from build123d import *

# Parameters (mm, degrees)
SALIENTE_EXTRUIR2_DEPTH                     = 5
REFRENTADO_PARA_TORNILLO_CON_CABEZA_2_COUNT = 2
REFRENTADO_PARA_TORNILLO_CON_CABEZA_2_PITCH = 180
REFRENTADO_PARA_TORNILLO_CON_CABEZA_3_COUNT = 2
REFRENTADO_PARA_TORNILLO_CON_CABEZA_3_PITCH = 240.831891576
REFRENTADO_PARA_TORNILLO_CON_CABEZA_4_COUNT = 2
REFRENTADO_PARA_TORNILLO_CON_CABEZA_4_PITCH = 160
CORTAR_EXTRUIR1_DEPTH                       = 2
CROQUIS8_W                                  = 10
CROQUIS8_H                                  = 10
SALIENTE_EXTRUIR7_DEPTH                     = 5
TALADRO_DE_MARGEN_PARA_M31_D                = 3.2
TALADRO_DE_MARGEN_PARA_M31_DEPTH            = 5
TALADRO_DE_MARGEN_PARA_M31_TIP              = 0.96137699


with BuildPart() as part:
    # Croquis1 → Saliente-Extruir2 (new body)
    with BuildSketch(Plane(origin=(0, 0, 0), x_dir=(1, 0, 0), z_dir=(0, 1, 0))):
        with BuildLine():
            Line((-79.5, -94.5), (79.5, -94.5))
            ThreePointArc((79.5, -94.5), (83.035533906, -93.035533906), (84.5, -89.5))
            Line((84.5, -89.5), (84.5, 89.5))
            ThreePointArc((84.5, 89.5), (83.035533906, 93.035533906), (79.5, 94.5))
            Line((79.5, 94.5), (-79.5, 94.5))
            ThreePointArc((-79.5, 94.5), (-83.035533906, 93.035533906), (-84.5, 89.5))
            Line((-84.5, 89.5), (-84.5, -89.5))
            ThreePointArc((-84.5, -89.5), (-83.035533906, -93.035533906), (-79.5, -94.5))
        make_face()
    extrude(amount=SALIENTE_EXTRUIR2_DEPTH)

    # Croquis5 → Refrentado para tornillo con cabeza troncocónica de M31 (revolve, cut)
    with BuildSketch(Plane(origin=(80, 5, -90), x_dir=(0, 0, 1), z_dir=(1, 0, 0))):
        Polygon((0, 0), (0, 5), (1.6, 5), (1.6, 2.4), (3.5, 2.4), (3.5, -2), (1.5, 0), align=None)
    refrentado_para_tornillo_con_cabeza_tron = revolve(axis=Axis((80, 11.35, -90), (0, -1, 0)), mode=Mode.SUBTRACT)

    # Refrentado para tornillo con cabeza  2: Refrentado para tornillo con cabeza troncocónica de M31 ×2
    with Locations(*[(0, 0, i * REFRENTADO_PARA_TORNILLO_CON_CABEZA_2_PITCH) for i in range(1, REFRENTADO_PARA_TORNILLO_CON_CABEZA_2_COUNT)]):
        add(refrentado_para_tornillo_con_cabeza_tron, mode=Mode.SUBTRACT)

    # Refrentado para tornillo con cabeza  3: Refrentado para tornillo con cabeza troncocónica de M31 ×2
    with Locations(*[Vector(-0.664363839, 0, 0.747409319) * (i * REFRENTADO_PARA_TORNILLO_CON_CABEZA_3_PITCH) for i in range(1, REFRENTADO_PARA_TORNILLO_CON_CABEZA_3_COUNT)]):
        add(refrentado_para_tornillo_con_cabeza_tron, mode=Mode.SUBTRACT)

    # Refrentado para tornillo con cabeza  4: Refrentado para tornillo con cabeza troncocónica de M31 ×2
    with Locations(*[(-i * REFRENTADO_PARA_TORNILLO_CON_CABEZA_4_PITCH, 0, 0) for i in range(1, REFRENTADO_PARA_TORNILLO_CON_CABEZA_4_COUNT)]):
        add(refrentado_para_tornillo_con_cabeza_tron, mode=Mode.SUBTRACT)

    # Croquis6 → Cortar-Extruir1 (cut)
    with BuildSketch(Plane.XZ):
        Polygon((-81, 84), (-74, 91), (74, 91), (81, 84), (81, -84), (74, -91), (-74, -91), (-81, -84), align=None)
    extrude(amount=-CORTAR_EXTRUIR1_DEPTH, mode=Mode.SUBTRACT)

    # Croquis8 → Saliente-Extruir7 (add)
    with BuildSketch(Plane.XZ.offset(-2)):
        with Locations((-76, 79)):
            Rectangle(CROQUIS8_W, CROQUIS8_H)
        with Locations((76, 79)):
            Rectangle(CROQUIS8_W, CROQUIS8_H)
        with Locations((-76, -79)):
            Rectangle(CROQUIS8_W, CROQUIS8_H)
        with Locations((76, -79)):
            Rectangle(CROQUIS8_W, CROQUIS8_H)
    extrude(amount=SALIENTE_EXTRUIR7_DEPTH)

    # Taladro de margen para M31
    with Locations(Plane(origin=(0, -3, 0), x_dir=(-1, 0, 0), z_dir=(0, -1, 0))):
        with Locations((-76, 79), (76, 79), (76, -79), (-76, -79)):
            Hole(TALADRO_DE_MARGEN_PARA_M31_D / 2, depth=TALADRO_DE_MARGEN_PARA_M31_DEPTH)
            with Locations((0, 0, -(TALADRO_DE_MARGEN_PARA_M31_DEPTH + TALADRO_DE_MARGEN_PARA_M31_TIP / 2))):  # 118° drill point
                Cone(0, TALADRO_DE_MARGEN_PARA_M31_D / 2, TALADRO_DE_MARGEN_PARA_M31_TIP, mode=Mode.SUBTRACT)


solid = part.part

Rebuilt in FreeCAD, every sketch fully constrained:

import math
import FreeCAD as App
import Part
import Sketcher

V = App.Vector
Q = App.Units.Quantity

doc = App.newDocument("Part")
params = doc.addObject("Spreadsheet::Sheet", "Params")
for row, (alias, value) in enumerate([
    ("sketch1_radius", "5 mm"),
    ("sketch1_width", "159 mm"),
    ("sketch1_height", "179 mm"),
    ("pad1_length", "5 mm"),
    ("sketch2_width", "5 mm"),
    ("sketch2_width2", "7 mm"),
    ("sketch2_width3", "4.4 mm"),
    ("sketch2_height", "1.5 mm"),
    ("sketch2_height2", "1.9 mm"),
    ("groove_angle", "360 deg"),
    ("linearpattern_pitch", "180 mm"),
    ("linearpattern2_pitch", "240.831892 mm"),
    ("linearpattern3_pitch", "160 mm"),
    ("sketch3_width", "148 mm"),
    ("sketch3_height", "168 mm"),
    ("pocket1_length", "2 mm"),
    ("sketch4_width", "10 mm"),
    ("pad2_length", "5 mm"),
    ("sketch5_diameter", "3.2 mm"),
    ("hole_diameter", "3.2 mm"),
    ("hole_depth", "5 mm"),
], start=1):
    params.set(f"A{row}", alias)
    params.set(f"B{row}", "=" + value)
    params.setAlias(f"B{row}", alias)

body = doc.addObject("PartDesign::Body", "Body")

# Sketch on XZ plane
sketch1 = doc.addObject("Sketcher::SketchObject", "Sketch")
body.addObject(sketch1)
sketch1.AttachmentSupport = (doc.XZ_Plane, [""])
sketch1.MapMode = "FlatFace"
sketch1.addGeometry([
    Part.LineSegment(V(-79.5, 94.5, 0), V(79.5, 94.5, 0)),  # 0
    Part.ArcOfCircle(Part.Circle(V(79.5, 89.5, 0), V(0, 0, 1), 5), math.radians(0), math.radians(90)),  # 1
    Part.LineSegment(V(84.5, 89.5, 0), V(84.5, -89.5, 0)),  # 2
    Part.ArcOfCircle(Part.Circle(V(79.5, -89.5, 0), V(0, 0, 1), 5), math.radians(-90), math.radians(0)),  # 3
    Part.LineSegment(V(79.5, -94.5, 0), V(-79.5, -94.5, 0)),  # 4
    Part.ArcOfCircle(Part.Circle(V(-79.5, -89.5, 0), V(0, 0, 1), 5), math.radians(180), math.radians(270)),  # 5
    Part.LineSegment(V(-84.5, -89.5, 0), V(-84.5, 89.5, 0)),  # 6
    Part.ArcOfCircle(Part.Circle(V(-79.5, 89.5, 0), V(0, 0, 1), 5), math.radians(90), math.radians(180)),  # 7
], False)
sketch1.addConstraint([
    Sketcher.Constraint("Tangent", 0, 2, 1, 2),
    Sketcher.Constraint("Tangent", 1, 1, 2, 1),
    Sketcher.Constraint("Tangent", 2, 2, 3, 2),
    Sketcher.Constraint("Tangent", 3, 1, 4, 1),
    Sketcher.Constraint("Tangent", 4, 2, 5, 2),
    Sketcher.Constraint("Tangent", 5, 1, 6, 1),
    Sketcher.Constraint("Tangent", 6, 2, 7, 2),
    Sketcher.Constraint("Tangent", 7, 1, 0, 1),
    Sketcher.Constraint("Horizontal", 0),
    Sketcher.Constraint("Vertical", 2),
    Sketcher.Constraint("Horizontal", 4),
    Sketcher.Constraint("Vertical", 6),
    Sketcher.Constraint("Equal", 1, 3),
    Sketcher.Constraint("Equal", 3, 5),
    Sketcher.Constraint("Equal", 5, 7),
    Sketcher.Constraint("Symmetric", 1, 3, 5, 3, -1, 1),
    Sketcher.Constraint("Radius", 1, Q("5 mm")),
    Sketcher.Constraint("DistanceX", 0, 1, 0, 2, Q("159 mm")),
    Sketcher.Constraint("DistanceY", 2, 2, 2, 1, Q("179 mm")),
])
sketch1.setExpression("Constraints[16]", "Params.sketch1_radius")
sketch1.setExpression("Constraints[17]", "Params.sketch1_width")
sketch1.setExpression("Constraints[18]", "Params.sketch1_height")
pad1 = doc.addObject("PartDesign::Pad", "Pad")
body.addObject(pad1)
pad1.Profile = sketch1
pad1.setExpression("Length", "Params.pad1_length")
pad1.Reversed = True

# Sketch on YZ plane
sketch2 = doc.addObject("Sketcher::SketchObject", "Sketch001")
body.addObject(sketch2)
sketch2.AttachmentSupport = (doc.YZ_Plane, [""])
sketch2.MapMode = "FlatFace"
sketch2.AttachmentOffset = App.Placement(V(0, 0, 80), App.Rotation())
sketch2.addGeometry([
    Part.LineSegment(V(0, -90, 0), V(5, -90, 0)),  # 0
    Part.LineSegment(V(5, -90, 0), V(5, -88.5, 0)),  # 1
    Part.LineSegment(V(5, -88.5, 0), V(7, -86.5, 0)),  # 2
    Part.LineSegment(V(7, -86.5, 0), V(2.6, -86.5, 0)),  # 3
    Part.LineSegment(V(2.6, -86.5, 0), V(2.6, -88.4, 0)),  # 4
    Part.LineSegment(V(2.6, -88.4, 0), V(0, -88.4, 0)),  # 5
    Part.LineSegment(V(0, -88.4, 0), V(0, -90, 0)),  # 6
], False)
sketch2.addGeometry(Part.LineSegment(V(7, -90, 0), V(0, -90, 0)), True)  # axis
sketch2.addConstraint([
    Sketcher.Constraint("Coincident", 0, 2, 1, 1),
    Sketcher.Constraint("Coincident", 1, 2, 2, 1),
    Sketcher.Constraint("Coincident", 2, 2, 3, 1),
    Sketcher.Constraint("Coincident", 3, 2, 4, 1),
    Sketcher.Constraint("Coincident", 4, 2, 5, 1),
    Sketcher.Constraint("Coincident", 5, 2, 6, 1),
    Sketcher.Constraint("Coincident", 6, 2, 0, 1),
    Sketcher.Constraint("Horizontal", 0),
    Sketcher.Constraint("Vertical", 1),
    Sketcher.Constraint("Horizontal", 3),
    Sketcher.Constraint("Vertical", 4),
    Sketcher.Constraint("Horizontal", 5),
    Sketcher.Constraint("Vertical", 6),
    Sketcher.Constraint("Horizontal", 7),
    Sketcher.Constraint("Coincident", 7, 2, 6, 2),
    Sketcher.Constraint("PointOnObject", 5, 2, -2),
    Sketcher.Constraint("Vertical", 2, 2, 7, 1),
    Sketcher.Constraint("DistanceX", 0, 1, 0, 2, Q("5 mm")),
    Sketcher.Constraint("DistanceX", 7, 2, 7, 1, Q("7 mm")),
    Sketcher.Constraint("Angle", 2, Q("45 deg")),
    Sketcher.Constraint("DistanceX", 3, 2, 3, 1, Q("4.4 mm")),
    Sketcher.Constraint("DistanceY", 1, 1, 1, 2, Q("1.5 mm")),
    Sketcher.Constraint("DistanceY", 4, 2, 4, 1, Q("1.9 mm")),
    Sketcher.Constraint("DistanceY", 0, 2, -1, 1, Q("90 mm")),
])
sketch2.setExpression("Constraints[17]", "Params.sketch2_width")
sketch2.setExpression("Constraints[18]", "Params.sketch2_width2")
sketch2.setExpression("Constraints[20]", "Params.sketch2_width3")
sketch2.setExpression("Constraints[21]", "Params.sketch2_height")
sketch2.setExpression("Constraints[22]", "Params.sketch2_height2")
groove = doc.addObject("PartDesign::Groove", "Groove")
body.addObject(groove)
groove.Profile = sketch2
groove.ReferenceAxis = (sketch2, ["Axis0"])
groove.setExpression("Angle", "Params.groove_angle")
doc.recompute()

linearpattern = doc.addObject("PartDesign::LinearPattern", "LinearPattern")
body.addObject(linearpattern)
linearpattern.Originals = [groove]
linearpattern.Direction = (doc.Z_Axis, [""])
linearpattern.Mode = "offset"
linearpattern.setExpression("Offset", "Params.linearpattern_pitch")
linearpattern.Occurrences = 2
body.Tip = linearpattern
doc.recompute()

datumline = doc.addObject("PartDesign::Line", "DatumLine")
body.addObject(datumline)
datumline.Placement = App.Placement(V(0, 0, 0), App.Rotation(V(0, 0, 1), V(-0.664363839, 0, 0.747409319)))
linearpattern2 = doc.addObject("PartDesign::LinearPattern", "LinearPattern001")
body.addObject(linearpattern2)
linearpattern2.Originals = [groove]
linearpattern2.Direction = (datumline, [""])
linearpattern2.Mode = "offset"
linearpattern2.setExpression("Offset", "Params.linearpattern2_pitch")
linearpattern2.Occurrences = 2
body.Tip = linearpattern2
doc.recompute()

linearpattern3 = doc.addObject("PartDesign::LinearPattern", "LinearPattern002")
body.addObject(linearpattern3)
linearpattern3.Originals = [groove]
linearpattern3.Direction = (doc.X_Axis, [""])
linearpattern3.Mode = "offset"
linearpattern3.setExpression("Offset", "Params.linearpattern3_pitch")
linearpattern3.Occurrences = 2
linearpattern3.Reversed = True
body.Tip = linearpattern3

# Sketch on XZ plane
sketch3 = doc.addObject("Sketcher::SketchObject", "Sketch002")
body.addObject(sketch3)
sketch3.AttachmentSupport = (doc.XZ_Plane, [""])
sketch3.MapMode = "FlatFace"
sketch3.addGeometry([
    Part.LineSegment(V(-74, 91, 0), V(-81, 84, 0)),  # 0
    Part.LineSegment(V(-81, 84, 0), V(-81, -84, 0)),  # 1
    Part.LineSegment(V(-81, -84, 0), V(-74, -91, 0)),  # 2
    Part.LineSegment(V(-74, -91, 0), V(74, -91, 0)),  # 3
    Part.LineSegment(V(74, -91, 0), V(81, -84, 0)),  # 4
    Part.LineSegment(V(81, -84, 0), V(81, 84, 0)),  # 5
    Part.LineSegment(V(81, 84, 0), V(74, 91, 0)),  # 6
    Part.LineSegment(V(74, 91, 0), V(-74, 91, 0)),  # 7
], False)
sketch3.addConstraint([
    Sketcher.Constraint("Coincident", 0, 2, 1, 1),
    Sketcher.Constraint("Coincident", 1, 2, 2, 1),
    Sketcher.Constraint("Coincident", 2, 2, 3, 1),
    Sketcher.Constraint("Coincident", 3, 2, 4, 1),
    Sketcher.Constraint("Coincident", 4, 2, 5, 1),
    Sketcher.Constraint("Coincident", 5, 2, 6, 1),
    Sketcher.Constraint("Coincident", 6, 2, 7, 1),
    Sketcher.Constraint("Coincident", 7, 2, 0, 1),
    Sketcher.Constraint("Vertical", 1),
    Sketcher.Constraint("Horizontal", 3),
    Sketcher.Constraint("Vertical", 5),
    Sketcher.Constraint("Horizontal", 7),
    Sketcher.Constraint("Symmetric", 0, 2, 4, 2, -1, 1),
    Sketcher.Constraint("Symmetric", 2, 2, 6, 2, -1, 1),
    Sketcher.Constraint("Perpendicular", 0, 2),
    Sketcher.Constraint("Perpendicular", 2, 4),
    Sketcher.Constraint("Perpendicular", 4, 6),
    Sketcher.Constraint("Horizontal", 1, 2, 4, 2),
    Sketcher.Constraint("Vertical", 3, 2, 6, 2),
    Sketcher.Constraint("DistanceX", 3, 1, 3, 2, Q("148 mm")),
    Sketcher.Constraint("DistanceY", 1, 2, 1, 1, Q("168 mm")),
    Sketcher.Constraint("DistanceX", 0, 2, -1, 1, Q("81 mm")),
])
sketch3.setExpression("Constraints[19]", "Params.sketch3_width")
sketch3.setExpression("Constraints[20]", "Params.sketch3_height")
pocket1 = doc.addObject("PartDesign::Pocket", "Pocket")
body.addObject(pocket1)
pocket1.Profile = sketch3
pocket1.setExpression("Length", "Params.pocket1_length")

# Sketch on XZ plane
sketch4 = doc.addObject("Sketcher::SketchObject", "Sketch003")
body.addObject(sketch4)
sketch4.AttachmentSupport = (doc.XZ_Plane, [""])
sketch4.MapMode = "FlatFace"
sketch4.AttachmentOffset = App.Placement(V(0, 0, -2), App.Rotation())
sketch4.addGeometry([
    Part.LineSegment(V(-81, 84, 0), V(-81, 74, 0)),  # 0
    Part.LineSegment(V(-81, 74, 0), V(-71, 74, 0)),  # 1
    Part.LineSegment(V(-71, 74, 0), V(-71, 84, 0)),  # 2
    Part.LineSegment(V(-71, 84, 0), V(-81, 84, 0)),  # 3
    Part.LineSegment(V(71, 84, 0), V(71, 74, 0)),  # 4
    Part.LineSegment(V(71, 74, 0), V(81, 74, 0)),  # 5
    Part.LineSegment(V(81, 74, 0), V(81, 84, 0)),  # 6
    Part.LineSegment(V(81, 84, 0), V(71, 84, 0)),  # 7
    Part.LineSegment(V(-81, -74, 0), V(-81, -84, 0)),  # 8
    Part.LineSegment(V(-81, -84, 0), V(-71, -84, 0)),  # 9
    Part.LineSegment(V(-71, -84, 0), V(-71, -74, 0)),  # 10
    Part.LineSegment(V(-71, -74, 0), V(-81, -74, 0)),  # 11
    Part.LineSegment(V(71, -74, 0), V(71, -84, 0)),  # 12
    Part.LineSegment(V(71, -84, 0), V(81, -84, 0)),  # 13
    Part.LineSegment(V(81, -84, 0), V(81, -74, 0)),  # 14
    Part.LineSegment(V(81, -74, 0), V(71, -74, 0)),  # 15
], False)
sketch4.addConstraint([
    Sketcher.Constraint("Coincident", 0, 2, 1, 1),
    Sketcher.Constraint("Coincident", 1, 2, 2, 1),
    Sketcher.Constraint("Coincident", 2, 2, 3, 1),
    Sketcher.Constraint("Coincident", 3, 2, 0, 1),
    Sketcher.Constraint("Coincident", 4, 2, 5, 1),
    Sketcher.Constraint("Coincident", 5, 2, 6, 1),
    Sketcher.Constraint("Coincident", 6, 2, 7, 1),
    Sketcher.Constraint("Coincident", 7, 2, 4, 1),
    Sketcher.Constraint("Coincident", 8, 2, 9, 1),
    Sketcher.Constraint("Coincident", 9, 2, 10, 1),
    Sketcher.Constraint("Coincident", 10, 2, 11, 1),
    Sketcher.Constraint("Coincident", 11, 2, 8, 1),
    Sketcher.Constraint("Coincident", 12, 2, 13, 1),
    Sketcher.Constraint("Coincident", 13, 2, 14, 1),
    Sketcher.Constraint("Coincident", 14, 2, 15, 1),
    Sketcher.Constraint("Coincident", 15, 2, 12, 1),
    Sketcher.Constraint("Vertical", 0),
    Sketcher.Constraint("Horizontal", 1),
    Sketcher.Constraint("Vertical", 2),
    Sketcher.Constraint("Horizontal", 3),
    Sketcher.Constraint("Vertical", 4),
    Sketcher.Constraint("Horizontal", 5),
    Sketcher.Constraint("Vertical", 6),
    Sketcher.Constraint("Horizontal", 7),
    Sketcher.Constraint("Vertical", 8),
    Sketcher.Constraint("Horizontal", 9),
    Sketcher.Constraint("Vertical", 10),
    Sketcher.Constraint("Horizontal", 11),
    Sketcher.Constraint("Vertical", 12),
    Sketcher.Constraint("Horizontal", 13),
    Sketcher.Constraint("Vertical", 14),
    Sketcher.Constraint("Horizontal", 15),
    Sketcher.Constraint("Symmetric", 6, 2, 8, 2, -1, 1),
    Sketcher.Constraint("Symmetric", 4, 2, 10, 2, -1, 1),
    Sketcher.Constraint("Symmetric", 2, 2, 12, 2, -1, 1),
    Sketcher.Constraint("Symmetric", 0, 2, 14, 2, -1, 1),
    Sketcher.Constraint("Symmetric", 1, 2, 4, 2, -2),
    Sketcher.Constraint("Symmetric", 3, 2, 6, 2, -2),
    Sketcher.Constraint("Equal", 15, 0),
    Sketcher.Constraint("DistanceX", 1, 1, 1, 2, Q("10 mm")),
    Sketcher.Constraint("DistanceX", 0, 2, -1, 1, Q("81 mm")),
    Sketcher.Constraint("DistanceY", -1, 1, 0, 2, Q("74 mm")),
])
sketch4.setExpression("Constraints[39]", "Params.sketch4_width")
pad2 = doc.addObject("PartDesign::Pad", "Pad001")
body.addObject(pad2)
pad2.Profile = sketch4
pad2.setExpression("Length", "Params.pad2_length")

# Sketch on XZ plane
sketch5 = doc.addObject("Sketcher::SketchObject", "Sketch004")
body.addObject(sketch5)
sketch5.AttachmentSupport = (doc.XZ_Plane, [""])
sketch5.MapMode = "FlatFace"
sketch5.AttachmentOffset = App.Placement(V(0, 0, 3), App.Rotation())
sketch5.addGeometry([
    Part.Circle(V(76, -79, 0), V(0, 0, 1), 1.6),
    Part.Circle(V(-76, -79, 0), V(0, 0, 1), 1.6),
    Part.Circle(V(-76, 79, 0), V(0, 0, 1), 1.6),
    Part.Circle(V(76, 79, 0), V(0, 0, 1), 1.6),
], False)
sketch5.addConstraint([
    Sketcher.Constraint("Equal", 0, 1),
    Sketcher.Constraint("Equal", 1, 2),
    Sketcher.Constraint("Equal", 2, 3),
    Sketcher.Constraint("Symmetric", 0, 3, 2, 3, -1, 1),
    Sketcher.Constraint("Symmetric", 1, 3, 3, 3, -1, 1),
    Sketcher.Constraint("Symmetric", 0, 3, 1, 3, -2),
    Sketcher.Constraint("Diameter", 0, Q("3.2 mm")),
    Sketcher.Constraint("DistanceX", -1, 1, 0, 3, Q("76 mm")),
    Sketcher.Constraint("DistanceY", 0, 3, -1, 1, Q("79 mm")),
])
sketch5.setExpression("Constraints[6]", "Params.sketch5_diameter")
doc.recompute()
hole = doc.addObject("PartDesign::Hole", "Hole")
body.addObject(hole)
hole.Profile = sketch5
hole.ThreadType = "None"
hole.setExpression("Diameter", "Params.hole_diameter")
hole.DepthType = "Dimension"
hole.setExpression("Depth", "Params.hole_depth")
hole.DrillPoint = "Angled"
hole.DrillPointAngle = 118

doc.recompute()
